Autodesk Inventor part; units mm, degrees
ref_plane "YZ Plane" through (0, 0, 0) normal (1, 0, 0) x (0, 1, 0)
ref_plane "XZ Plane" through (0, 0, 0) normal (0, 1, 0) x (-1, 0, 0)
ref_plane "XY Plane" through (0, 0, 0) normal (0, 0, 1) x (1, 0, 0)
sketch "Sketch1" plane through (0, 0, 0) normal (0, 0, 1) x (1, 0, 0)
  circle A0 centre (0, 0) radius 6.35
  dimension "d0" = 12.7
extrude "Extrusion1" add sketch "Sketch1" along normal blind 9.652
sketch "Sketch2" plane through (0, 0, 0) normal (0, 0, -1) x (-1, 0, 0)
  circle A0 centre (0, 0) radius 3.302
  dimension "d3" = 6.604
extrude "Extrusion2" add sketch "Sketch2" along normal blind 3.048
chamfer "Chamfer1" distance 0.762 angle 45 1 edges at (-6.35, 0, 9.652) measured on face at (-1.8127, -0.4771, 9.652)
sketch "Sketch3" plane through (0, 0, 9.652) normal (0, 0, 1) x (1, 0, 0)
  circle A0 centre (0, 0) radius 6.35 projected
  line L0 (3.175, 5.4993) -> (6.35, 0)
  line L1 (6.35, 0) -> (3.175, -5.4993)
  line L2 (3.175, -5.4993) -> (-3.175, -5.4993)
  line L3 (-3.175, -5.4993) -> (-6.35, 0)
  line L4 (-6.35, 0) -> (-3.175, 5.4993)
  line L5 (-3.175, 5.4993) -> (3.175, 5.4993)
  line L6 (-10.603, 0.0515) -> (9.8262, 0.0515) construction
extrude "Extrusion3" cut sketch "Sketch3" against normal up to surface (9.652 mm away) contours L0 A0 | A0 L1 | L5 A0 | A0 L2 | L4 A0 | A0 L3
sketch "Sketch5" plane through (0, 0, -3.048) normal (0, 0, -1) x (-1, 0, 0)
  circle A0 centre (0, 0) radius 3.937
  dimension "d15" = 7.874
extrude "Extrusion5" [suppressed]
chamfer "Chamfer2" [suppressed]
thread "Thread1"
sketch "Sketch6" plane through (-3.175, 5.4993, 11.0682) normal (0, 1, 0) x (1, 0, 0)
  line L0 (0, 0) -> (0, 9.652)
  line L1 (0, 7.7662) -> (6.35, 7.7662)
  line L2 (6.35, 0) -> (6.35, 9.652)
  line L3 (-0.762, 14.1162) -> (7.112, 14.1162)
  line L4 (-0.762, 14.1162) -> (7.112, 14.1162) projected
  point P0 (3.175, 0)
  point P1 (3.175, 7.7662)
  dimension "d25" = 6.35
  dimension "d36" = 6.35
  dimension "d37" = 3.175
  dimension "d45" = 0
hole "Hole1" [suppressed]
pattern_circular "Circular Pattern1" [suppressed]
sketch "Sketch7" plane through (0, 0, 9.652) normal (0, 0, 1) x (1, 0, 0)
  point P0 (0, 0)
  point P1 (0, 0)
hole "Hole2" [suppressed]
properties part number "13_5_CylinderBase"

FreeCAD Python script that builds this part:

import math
import FreeCAD as App
import Part
import Sketcher

V = App.Vector
Q = App.Units.Quantity


def edges_at(feature, points):
    """Names of the edges that pass closest to the given points."""
    edges = feature.Shape.Edges
    near = lambda p: min(range(len(edges)), key=lambda i: edges[i].distToShape(Part.Vertex(*p))[0])
    return sorted({f"Edge{near(p) + 1}" for p in points})

doc = App.newDocument("Part")
body = doc.addObject("PartDesign::Body", "Body")

sketch1 = doc.addObject("Sketcher::SketchObject", "Sketch")
body.addObject(sketch1)
sketch1.AttachmentSupport = (doc.XY_Plane, [""])
sketch1.MapMode = "FlatFace"
sketch1.addGeometry(Part.Circle(V(0, 0, 0), V(0, 0, 1), 6), False)
sketch1.addConstraint([
    Sketcher.Constraint("Coincident", 0, 3, -1, 1),
    Sketcher.Constraint("Diameter", 0, Q("0.5 in")),
])
pad1 = doc.addObject("PartDesign::Pad", "Pad")
body.addObject(pad1)
pad1.Profile = sketch1
pad1.Length = Q("0.38 in")

sketch2 = doc.addObject("Sketcher::SketchObject", "Sketch001")
body.addObject(sketch2)
sketch2.AttachmentSupport = (doc.XY_Plane, [""])
sketch2.MapMode = "FlatFace"
sketch2.addGeometry(Part.Circle(V(0, 0, 0), V(0, 0, 1), 3.3), False)
sketch2.addConstraint([
    Sketcher.Constraint("Coincident", 0, 3, -1, 1),
    Sketcher.Constraint("Diameter", 0, Q("0.26 in")),
])
pad2 = doc.addObject("PartDesign::Pad", "Pad001")
body.addObject(pad2)
pad2.Profile = sketch2
pad2.Length = Q("0.12 in")
pad2.Reversed = True
doc.recompute()

chamfer = doc.addObject("PartDesign::Chamfer", "Chamfer")
body.addObject(chamfer)
chamfer.Base = (pad2, edges_at(pad2, [(-6.35, 0, 9.652)]))
chamfer.Size = Q("0.03 in")

sketch3 = doc.addObject("Sketcher::SketchObject", "Sketch002")
body.addObject(sketch3)
sketch3.AttachmentSupport = (doc.XY_Plane, [""])
sketch3.MapMode = "FlatFace"
sketch3.AttachmentOffset = App.Placement(V(0, 0, 0.38 * 25.4), App.Rotation())
sketch3.addGeometry([
    Part.LineSegment(V(3, 5, 0), V(6, 0, 0)),
    Part.ArcOfCircle(Part.Circle(V(0, 0, 0), V(0, 0, 1), 6), math.radians(0), math.radians(60)),
    Part.ArcOfCircle(Part.Circle(V(0, 0, 0), V(0, 0, 1), 6), math.radians(-60), math.radians(0)),
    Part.LineSegment(V(6, 0, 0), V(3, -5, 0)),
    Part.LineSegment(V(-3, 5, 0), V(3, 5, 0)),
    Part.ArcOfCircle(Part.Circle(V(0, 0, 0), V(0, 0, 1), 6), math.radians(60), math.radians(120)),
    Part.ArcOfCircle(Part.Circle(V(0, 0, 0), V(0, 0, 1), 6), math.radians(-120), math.radians(-60)),
    Part.LineSegment(V(-3, -5, 0), V(3, -5, 0)),
    Part.LineSegment(V(-6, 0, 0), V(-3, 5, 0)),
    Part.ArcOfCircle(Part.Circle(V(0, 0, 0), V(0, 0, 1), 6), math.radians(120), math.radians(180)),
    Part.ArcOfCircle(Part.Circle(V(0, 0, 0), V(0, 0, 1), 6), math.radians(180), math.radians(240)),
    Part.LineSegment(V(-6, 0, 0), V(-3, -5, 0)),
], False)
sketch3.addConstraint([
    Sketcher.Constraint("Coincident", 0, 1, 1, 2),
    Sketcher.Constraint("Coincident", 1, 1, 0, 2),
    Sketcher.Constraint("Coincident", 2, 1, 3, 2),
    Sketcher.Constraint("Coincident", 3, 1, 2, 2),
    Sketcher.Constraint("Coincident", 4, 1, 5, 2),
    Sketcher.Constraint("Coincident", 5, 1, 4, 2),
    Sketcher.Constraint("Coincident", 6, 1, 7, 1),
    Sketcher.Constraint("Coincident", 7, 2, 6, 2),
    Sketcher.Constraint("Coincident", 8, 1, 9, 2),
    Sketcher.Constraint("Coincident", 9, 1, 8, 2),
    Sketcher.Constraint("Coincident", 10, 1, 11, 1),
    Sketcher.Constraint("Coincident", 11, 2, 10, 2),
    Sketcher.Constraint("Horizontal", 4),
    Sketcher.Constraint("Horizontal", 7),
    Sketcher.Constraint("Coincident", 1, 3, -1, 1),
    Sketcher.Constraint("Coincident", 2, 3, -1, 1),
    Sketcher.Constraint("Coincident", 5, 3, -1, 1),
    Sketcher.Constraint("Coincident", 6, 3, -1, 1),
    Sketcher.Constraint("Coincident", 9, 3, -1, 1),
    Sketcher.Constraint("Coincident", 10, 3, -1, 1),
    Sketcher.Constraint("Coincident", 3, 1, 1, 1),
    Sketcher.Constraint("Coincident", 5, 1, 0, 1),
    Sketcher.Constraint("Coincident", 7, 2, 2, 1),
    Sketcher.Constraint("Coincident", 9, 1, 4, 1),
    Sketcher.Constraint("Coincident", 10, 1, 8, 1),
    Sketcher.Constraint("PointOnObject", 1, 1, -1),
    Sketcher.Constraint("PointOnObject", 8, 1, -1),
    Sketcher.Constraint("Parallel", 3, 8),
    Sketcher.Constraint("Parallel", 0, 11),
    Sketcher.Constraint("Radius", 1, Q("0.25 in")),
    Sketcher.Constraint("Angle", 0, Q("-60.0002 deg")),
])
pocket1 = doc.addObject("PartDesign::Pocket", "Pocket")
body.addObject(pocket1)
pocket1.Profile = sketch3
pocket1.Length = Q("0.38 in")

doc.recompute()
